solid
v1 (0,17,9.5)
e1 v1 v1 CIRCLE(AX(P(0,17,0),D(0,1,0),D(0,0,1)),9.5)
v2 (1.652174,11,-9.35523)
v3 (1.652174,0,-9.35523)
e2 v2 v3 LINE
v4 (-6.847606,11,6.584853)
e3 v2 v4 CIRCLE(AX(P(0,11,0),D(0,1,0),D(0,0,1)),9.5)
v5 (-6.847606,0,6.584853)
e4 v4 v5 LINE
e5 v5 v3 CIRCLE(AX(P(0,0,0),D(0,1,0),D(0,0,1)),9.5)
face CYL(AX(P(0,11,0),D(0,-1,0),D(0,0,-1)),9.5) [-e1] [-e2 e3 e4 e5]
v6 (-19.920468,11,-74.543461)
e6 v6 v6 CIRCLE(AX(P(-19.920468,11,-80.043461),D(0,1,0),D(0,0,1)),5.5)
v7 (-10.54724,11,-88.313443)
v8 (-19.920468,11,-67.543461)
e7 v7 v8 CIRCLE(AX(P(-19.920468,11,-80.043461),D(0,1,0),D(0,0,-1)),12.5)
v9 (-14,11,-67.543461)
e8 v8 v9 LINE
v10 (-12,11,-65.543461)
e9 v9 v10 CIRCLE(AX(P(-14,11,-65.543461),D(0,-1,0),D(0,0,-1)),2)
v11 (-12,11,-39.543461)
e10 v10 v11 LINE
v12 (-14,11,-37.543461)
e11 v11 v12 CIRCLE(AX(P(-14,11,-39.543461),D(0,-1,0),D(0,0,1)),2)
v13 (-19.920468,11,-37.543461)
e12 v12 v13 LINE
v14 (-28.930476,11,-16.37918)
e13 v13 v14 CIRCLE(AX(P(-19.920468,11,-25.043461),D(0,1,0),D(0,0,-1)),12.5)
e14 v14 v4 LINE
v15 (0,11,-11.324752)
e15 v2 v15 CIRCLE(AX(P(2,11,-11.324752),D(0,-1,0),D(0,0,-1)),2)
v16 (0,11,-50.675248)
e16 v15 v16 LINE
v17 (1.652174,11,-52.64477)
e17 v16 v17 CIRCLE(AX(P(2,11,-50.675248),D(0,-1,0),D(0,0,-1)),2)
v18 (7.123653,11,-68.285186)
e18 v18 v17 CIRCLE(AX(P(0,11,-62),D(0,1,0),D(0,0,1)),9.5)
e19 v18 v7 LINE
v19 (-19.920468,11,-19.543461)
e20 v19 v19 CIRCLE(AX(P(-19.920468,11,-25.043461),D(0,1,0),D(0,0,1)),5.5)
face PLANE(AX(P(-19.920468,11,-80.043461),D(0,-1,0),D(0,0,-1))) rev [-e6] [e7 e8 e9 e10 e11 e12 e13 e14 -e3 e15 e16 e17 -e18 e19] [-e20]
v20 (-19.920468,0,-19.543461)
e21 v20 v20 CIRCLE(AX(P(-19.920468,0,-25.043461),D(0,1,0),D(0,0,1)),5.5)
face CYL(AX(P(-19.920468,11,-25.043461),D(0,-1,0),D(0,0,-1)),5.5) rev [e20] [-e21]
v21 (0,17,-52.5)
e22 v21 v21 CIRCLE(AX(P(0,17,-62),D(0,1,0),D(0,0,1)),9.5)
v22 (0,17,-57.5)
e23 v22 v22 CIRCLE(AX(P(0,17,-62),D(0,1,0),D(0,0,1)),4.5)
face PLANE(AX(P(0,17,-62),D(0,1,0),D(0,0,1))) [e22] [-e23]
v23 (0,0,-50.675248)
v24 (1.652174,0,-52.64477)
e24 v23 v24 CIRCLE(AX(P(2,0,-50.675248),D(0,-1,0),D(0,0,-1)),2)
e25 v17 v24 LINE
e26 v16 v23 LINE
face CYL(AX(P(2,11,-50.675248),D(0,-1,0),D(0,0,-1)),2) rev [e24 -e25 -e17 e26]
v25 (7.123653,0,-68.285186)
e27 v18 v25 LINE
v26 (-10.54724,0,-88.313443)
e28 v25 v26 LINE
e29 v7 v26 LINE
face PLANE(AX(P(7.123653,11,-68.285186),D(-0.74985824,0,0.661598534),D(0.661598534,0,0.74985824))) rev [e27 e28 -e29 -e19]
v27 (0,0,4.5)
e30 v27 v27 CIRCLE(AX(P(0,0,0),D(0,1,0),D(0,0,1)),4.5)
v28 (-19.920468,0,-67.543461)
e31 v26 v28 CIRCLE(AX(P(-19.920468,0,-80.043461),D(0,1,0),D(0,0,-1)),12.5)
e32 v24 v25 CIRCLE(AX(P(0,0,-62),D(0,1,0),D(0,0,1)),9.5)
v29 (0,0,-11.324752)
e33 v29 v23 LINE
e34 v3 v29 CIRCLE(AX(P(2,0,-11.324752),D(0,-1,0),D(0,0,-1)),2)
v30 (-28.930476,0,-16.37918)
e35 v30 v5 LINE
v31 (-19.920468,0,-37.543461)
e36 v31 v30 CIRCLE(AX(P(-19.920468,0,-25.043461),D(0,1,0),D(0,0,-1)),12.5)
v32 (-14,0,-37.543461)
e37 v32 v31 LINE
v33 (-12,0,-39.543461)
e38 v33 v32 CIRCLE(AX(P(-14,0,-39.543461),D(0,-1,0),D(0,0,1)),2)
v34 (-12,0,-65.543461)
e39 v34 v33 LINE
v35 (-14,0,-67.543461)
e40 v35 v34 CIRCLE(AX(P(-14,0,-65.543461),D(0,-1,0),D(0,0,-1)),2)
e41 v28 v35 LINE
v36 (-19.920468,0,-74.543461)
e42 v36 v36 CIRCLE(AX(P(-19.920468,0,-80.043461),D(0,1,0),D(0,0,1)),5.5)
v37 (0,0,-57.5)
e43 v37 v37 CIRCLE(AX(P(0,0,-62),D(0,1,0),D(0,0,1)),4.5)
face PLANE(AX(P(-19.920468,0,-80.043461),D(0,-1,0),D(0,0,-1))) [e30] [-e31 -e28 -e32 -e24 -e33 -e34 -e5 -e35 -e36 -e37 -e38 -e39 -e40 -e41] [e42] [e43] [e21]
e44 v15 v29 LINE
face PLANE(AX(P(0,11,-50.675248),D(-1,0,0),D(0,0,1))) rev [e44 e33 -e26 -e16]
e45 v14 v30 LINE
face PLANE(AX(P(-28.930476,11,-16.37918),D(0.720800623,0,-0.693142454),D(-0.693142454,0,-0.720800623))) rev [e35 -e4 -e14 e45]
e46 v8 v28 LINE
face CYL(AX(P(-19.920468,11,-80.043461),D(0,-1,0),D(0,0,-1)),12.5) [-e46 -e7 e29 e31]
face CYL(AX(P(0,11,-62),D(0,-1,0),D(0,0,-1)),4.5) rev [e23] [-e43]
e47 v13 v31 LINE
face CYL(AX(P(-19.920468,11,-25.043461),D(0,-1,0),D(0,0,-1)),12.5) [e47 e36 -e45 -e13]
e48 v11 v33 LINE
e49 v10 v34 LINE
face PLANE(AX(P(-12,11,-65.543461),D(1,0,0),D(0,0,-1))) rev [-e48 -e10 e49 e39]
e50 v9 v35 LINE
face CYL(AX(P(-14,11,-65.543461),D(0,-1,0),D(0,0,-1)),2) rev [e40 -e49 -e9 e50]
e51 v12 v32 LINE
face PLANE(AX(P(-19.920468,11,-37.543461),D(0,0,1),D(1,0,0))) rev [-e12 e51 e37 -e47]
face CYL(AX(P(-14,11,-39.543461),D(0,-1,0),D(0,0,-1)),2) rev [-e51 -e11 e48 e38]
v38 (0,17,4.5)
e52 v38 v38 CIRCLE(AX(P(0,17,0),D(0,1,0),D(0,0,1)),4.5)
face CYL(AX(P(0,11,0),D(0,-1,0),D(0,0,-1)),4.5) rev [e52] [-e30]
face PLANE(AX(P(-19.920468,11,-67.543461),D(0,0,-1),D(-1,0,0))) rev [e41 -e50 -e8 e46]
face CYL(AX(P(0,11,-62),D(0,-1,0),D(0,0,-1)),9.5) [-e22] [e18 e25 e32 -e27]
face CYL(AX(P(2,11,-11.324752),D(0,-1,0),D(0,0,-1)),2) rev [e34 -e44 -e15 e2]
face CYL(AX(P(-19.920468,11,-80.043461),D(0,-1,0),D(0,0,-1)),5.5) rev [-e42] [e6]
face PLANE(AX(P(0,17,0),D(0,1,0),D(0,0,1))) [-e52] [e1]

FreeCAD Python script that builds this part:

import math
import FreeCAD as App
import Part
import Sketcher

doc = App.newDocument("Part")
body = doc.addObject("PartDesign::Body", "Body")

# Sketch on XZ plane
sketch1 = doc.addObject("Sketcher::SketchObject", "Sketch")
body.addObject(sketch1)
sketch1.AttachmentSupport = (doc.XZ_Plane, [""])
sketch1.MapMode = "FlatFace"
sketch1.addGeometry([
    Part.LineSegment(App.Vector(-28.9, -16.4, 0), App.Vector(-6.8, 6.6, 0)),  # 0
    Part.ArcOfCircle(Part.Circle(App.Vector(0, 0, 0), App.Vector(0, 0, 1), 9.5), math.radians(-80), math.radians(136)),  # 1
    Part.ArcOfCircle(Part.Circle(App.Vector(2, -11.3, 0), App.Vector(0, 0, 1), 2), math.radians(100), math.radians(180)),  # 2
    Part.LineSegment(App.Vector(0, -11.3, 0), App.Vector(0, -50.7, 0)),  # 3
    Part.ArcOfCircle(Part.Circle(App.Vector(2, -50.7, 0), App.Vector(0, 0, 1), 2), math.radians(-180), math.radians(-100)),  # 4
    Part.ArcOfCircle(Part.Circle(App.Vector(0, -62, 0), App.Vector(0, 0, 1), 9.5), math.radians(-41), math.radians(80)),  # 5
    Part.LineSegment(App.Vector(7.1, -68.3, 0), App.Vector(-10.5, -88.3, 0)),  # 6
    Part.ArcOfCircle(Part.Circle(App.Vector(-19.9, -80, 0), App.Vector(0, 0, 1), 12.5), math.radians(90), math.radians(319)),  # 7
    Part.LineSegment(App.Vector(-19.9, -67.5, 0), App.Vector(-14, -67.5, 0)),  # 8
    Part.ArcOfCircle(Part.Circle(App.Vector(-14, -65.5, 0), App.Vector(0, 0, 1), 2), math.radians(-90), math.radians(0)),  # 9
    Part.LineSegment(App.Vector(-12, -65.5, 0), App.Vector(-12, -39.5, 0)),  # 10
    Part.ArcOfCircle(Part.Circle(App.Vector(-14, -39.5, 0), App.Vector(0, 0, 1), 2), math.radians(0), math.radians(90)),  # 11
    Part.LineSegment(App.Vector(-14, -37.5, 0), App.Vector(-19.9, -37.5, 0)),  # 12
    Part.ArcOfCircle(Part.Circle(App.Vector(-19.9, -25, 0), App.Vector(0, 0, 1), 12.5), math.radians(136), math.radians(270)),  # 13
    Part.Circle(App.Vector(-19.9, -25, 0), App.Vector(0, 0, 1), 5.5),  # 14
    Part.Circle(App.Vector(0, 0, 0), App.Vector(0, 0, 1), 4.5),  # 15
    Part.Circle(App.Vector(-19.9, -80, 0), App.Vector(0, 0, 1), 5.5),  # 16
    Part.Circle(App.Vector(0, -62, 0), App.Vector(0, 0, 1), 4.5),  # 17
], False)
sketch1.addConstraint([
    Sketcher.Constraint("Tangent", 0, 2, 1, 2),
    Sketcher.Constraint("Tangent", 1, 1, 2, 1),
    Sketcher.Constraint("Tangent", 2, 2, 3, 1),
    Sketcher.Constraint("Tangent", 3, 2, 4, 1),
    Sketcher.Constraint("Tangent", 4, 2, 5, 2),
    Sketcher.Constraint("Tangent", 5, 1, 6, 1),
    Sketcher.Constraint("Tangent", 6, 2, 7, 2),
    Sketcher.Constraint("Tangent", 7, 1, 8, 1),
    Sketcher.Constraint("Tangent", 8, 2, 9, 1),
    Sketcher.Constraint("Tangent", 9, 2, 10, 1),
    Sketcher.Constraint("Tangent", 10, 2, 11, 1),
    Sketcher.Constraint("Tangent", 11, 2, 12, 1),
    Sketcher.Constraint("Tangent", 12, 2, 13, 2),
    Sketcher.Constraint("Tangent", 13, 1, 0, 1),
    Sketcher.Constraint("Vertical", 3),
    Sketcher.Constraint("Horizontal", 8),
    Sketcher.Constraint("Vertical", 10),
    Sketcher.Constraint("Horizontal", 12),
    Sketcher.Constraint("Coincident", 1, 3, -1, 1),
    Sketcher.Constraint("Coincident", 15, 3, -1, 1),
    Sketcher.Constraint("Coincident", 14, 3, 13, 3),
    Sketcher.Constraint("Coincident", 16, 3, 7, 3),
    Sketcher.Constraint("Coincident", 17, 3, 5, 3),
    Sketcher.Constraint("Equal", 2, 4),
    Sketcher.Constraint("Equal", 1, 5),
    Sketcher.Constraint("Equal", 4, 9),
    Sketcher.Constraint("Equal", 9, 11),
    Sketcher.Constraint("Equal", 7, 13),
    Sketcher.Constraint("Equal", 14, 16),
    Sketcher.Constraint("Equal", 15, 17),
    Sketcher.Constraint("PointOnObject", 5, 3, -2),
    Sketcher.Constraint("PointOnObject", 2, 2, -2),
    Sketcher.Constraint("Vertical", 7, 3, 13, 3),
    Sketcher.Constraint("Diameter", 14, 11.0),
    Sketcher.Constraint("Diameter", 15, 9.0),
    Sketcher.Constraint("Radius", 2, 2.0),
    Sketcher.Constraint("Radius", 1, 9.5),
    Sketcher.Constraint("Radius", 7, 12.5),
    Sketcher.Constraint("DistanceY", 10, 1, 10, 2, 26.0),
    Sketcher.Constraint("DistanceY", 5, 3, -1, 1, 62.0),
    Sketcher.Constraint("DistanceX", 9, 3, -1, 1, 14.0),
    Sketcher.Constraint("DistanceX", 8, 1, 8, 2, 5.920468),
    Sketcher.Constraint("Distance", 6, 26.709391),
])
pad1 = doc.addObject("PartDesign::Pad", "Pad")
body.addObject(pad1)
pad1.Profile = sketch1
pad1.Length = 11
pad1.Reversed = True

# Sketch on XZ plane
sketch2 = doc.addObject("Sketcher::SketchObject", "Sketch001")
body.addObject(sketch2)
sketch2.AttachmentSupport = (doc.XZ_Plane, [""])
sketch2.MapMode = "FlatFace"
sketch2.AttachmentOffset = App.Placement(App.Vector(0, 0, -11), App.Rotation())
sketch2.addGeometry([
    Part.Circle(App.Vector(0, 0, 0), App.Vector(0, 0, 1), 9.5),
    Part.Circle(App.Vector(0, 0, 0), App.Vector(0, 0, 1), 4.5),
    Part.Circle(App.Vector(0, -62, 0), App.Vector(0, 0, 1), 9.5),
    Part.Circle(App.Vector(0, -62, 0), App.Vector(0, 0, 1), 4.5),
], False)
sketch2.addConstraint([
    Sketcher.Constraint("Coincident", 0, 3, -1, 1),
    Sketcher.Constraint("Coincident", 1, 3, -1, 1),
    Sketcher.Constraint("Coincident", 3, 3, 2, 3),
    Sketcher.Constraint("Equal", 0, 2),
    Sketcher.Constraint("Equal", 1, 3),
    Sketcher.Constraint("PointOnObject", 2, 3, -2),
    Sketcher.Constraint("Diameter", 0, 19.0),
    Sketcher.Constraint("Diameter", 1, 9.0),
    Sketcher.Constraint("DistanceY", 2, 3, -1, 1, 62.0),
])
pad2 = doc.addObject("PartDesign::Pad", "Pad001")
body.addObject(pad2)
pad2.Profile = sketch2
pad2.Length = 6
pad2.Reversed = True

doc.recompute()
